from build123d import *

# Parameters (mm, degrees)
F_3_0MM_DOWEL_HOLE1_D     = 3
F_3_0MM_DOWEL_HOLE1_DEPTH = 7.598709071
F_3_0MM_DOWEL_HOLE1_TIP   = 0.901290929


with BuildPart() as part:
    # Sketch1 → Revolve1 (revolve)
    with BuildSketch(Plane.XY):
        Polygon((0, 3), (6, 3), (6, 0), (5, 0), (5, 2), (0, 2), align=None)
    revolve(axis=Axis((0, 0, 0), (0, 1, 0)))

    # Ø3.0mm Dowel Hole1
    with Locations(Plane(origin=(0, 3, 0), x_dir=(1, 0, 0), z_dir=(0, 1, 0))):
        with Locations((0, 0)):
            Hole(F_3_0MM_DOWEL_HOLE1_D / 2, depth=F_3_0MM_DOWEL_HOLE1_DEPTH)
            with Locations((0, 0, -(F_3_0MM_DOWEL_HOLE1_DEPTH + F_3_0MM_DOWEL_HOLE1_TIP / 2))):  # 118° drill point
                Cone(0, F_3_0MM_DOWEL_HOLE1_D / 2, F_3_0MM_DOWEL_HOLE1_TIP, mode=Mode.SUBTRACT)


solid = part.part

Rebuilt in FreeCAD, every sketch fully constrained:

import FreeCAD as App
import Part
import Sketcher
Q = App.Units.Quantity

doc = App.newDocument("Part")
params = doc.addObject("Spreadsheet::Sheet", "Params")
for row, (alias, value) in enumerate([
    ("sketch1_width", "6 mm"),
    ("sketch1_width2", "5 mm"),
    ("sketch1_height", "2 mm"),
    ("revolution_angle", "360 deg"),
    ("sketch2_diameter", "3 mm"),
    ("hole_diameter", "3 mm"),
    ("hole_depth", "7.598709 mm"),
], start=1):
    params.set(f"A{row}", alias)
    params.set(f"B{row}", "=" + value)
    params.setAlias(f"B{row}", alias)

body = doc.addObject("PartDesign::Body", "Body")

# Sketch on XY plane
sketch1 = body.newObject("Sketcher::SketchObject", "Sketch")
sketch1.AttachmentSupport = (doc.getObject("XY_Plane"), [""])
sketch1.MapMode = "FlatFace"
sketch1.addGeometry([
    Part.LineSegment(App.Vector(6, 3, 0), App.Vector(0, 3, 0)),  # 0
    Part.LineSegment(App.Vector(0, 3, 0), App.Vector(0, 2, 0)),  # 1
    Part.LineSegment(App.Vector(0, 2, 0), App.Vector(5, 2, 0)),  # 2
    Part.LineSegment(App.Vector(5, 2, 0), App.Vector(5, 0, 0)),  # 3
    Part.LineSegment(App.Vector(5, 0, 0), App.Vector(6, 0, 0)),  # 4
    Part.LineSegment(App.Vector(6, 0, 0), App.Vector(6, 3, 0)),  # 5
], False)
sketch1.addConstraint([
    Sketcher.Constraint("Coincident", 0, 2, 1, 1),
    Sketcher.Constraint("Coincident", 1, 2, 2, 1),
    Sketcher.Constraint("Coincident", 2, 2, 3, 1),
    Sketcher.Constraint("Coincident", 3, 2, 4, 1),
    Sketcher.Constraint("Coincident", 4, 2, 5, 1),
    Sketcher.Constraint("Coincident", 5, 2, 0, 1),
    Sketcher.Constraint("Horizontal", 0),
    Sketcher.Constraint("Vertical", 1),
    Sketcher.Constraint("Horizontal", 2),
    Sketcher.Constraint("Vertical", 3),
    Sketcher.Constraint("Horizontal", 4),
    Sketcher.Constraint("Vertical", 5),
    Sketcher.Constraint("PointOnObject", 0, 2, -2),
    Sketcher.Constraint("PointOnObject", 3, 2, -1),
    Sketcher.Constraint("Equal", 4, 1),
    Sketcher.Constraint("DistanceX", 0, 2, 0, 1, Q("6 mm")),
    Sketcher.Constraint("DistanceX", 2, 1, 2, 2, Q("5 mm")),
    Sketcher.Constraint("DistanceY", 3, 2, 3, 1, Q("2 mm")),
])
sketch1.setExpression("Constraints[15]", "Params.sketch1_width")
sketch1.setExpression("Constraints[16]", "Params.sketch1_width2")
sketch1.setExpression("Constraints[17]", "Params.sketch1_height")
revolution = body.newObject("PartDesign::Revolution", "Revolution")
revolution.Profile = sketch1
revolution.ReferenceAxis = (sketch1, ["V_Axis"])
revolution.setExpression("Angle", "Params.revolution_angle")

# Sketch on XZ plane
sketch2 = body.newObject("Sketcher::SketchObject", "Sketch001")
sketch2.AttachmentSupport = (doc.getObject("XZ_Plane"), [""])
sketch2.MapMode = "FlatFace"
sketch2.AttachmentOffset = App.Placement(App.Vector(0, 0, -3), App.Rotation())
sketch2.addGeometry(Part.Circle(App.Vector(0, 0, 0), App.Vector(0, 0, 1), 1.5), False)
sketch2.addConstraint([
    Sketcher.Constraint("Coincident", 0, 3, -1, 1),
    Sketcher.Constraint("Diameter", 0, Q("3 mm")),
])
sketch2.setExpression("Constraints[1]", "Params.sketch2_diameter")
doc.recompute()
hole = body.newObject("PartDesign::Hole", "Hole")
hole.Profile = sketch2
hole.ThreadType = "None"
hole.setExpression("Diameter", "Params.hole_diameter")
hole.DepthType = "Dimension"
hole.setExpression("Depth", "Params.hole_depth")
hole.DrillPoint = "Angled"
hole.DrillPointAngle = 118
hole.Reversed = True

doc.recompute()
